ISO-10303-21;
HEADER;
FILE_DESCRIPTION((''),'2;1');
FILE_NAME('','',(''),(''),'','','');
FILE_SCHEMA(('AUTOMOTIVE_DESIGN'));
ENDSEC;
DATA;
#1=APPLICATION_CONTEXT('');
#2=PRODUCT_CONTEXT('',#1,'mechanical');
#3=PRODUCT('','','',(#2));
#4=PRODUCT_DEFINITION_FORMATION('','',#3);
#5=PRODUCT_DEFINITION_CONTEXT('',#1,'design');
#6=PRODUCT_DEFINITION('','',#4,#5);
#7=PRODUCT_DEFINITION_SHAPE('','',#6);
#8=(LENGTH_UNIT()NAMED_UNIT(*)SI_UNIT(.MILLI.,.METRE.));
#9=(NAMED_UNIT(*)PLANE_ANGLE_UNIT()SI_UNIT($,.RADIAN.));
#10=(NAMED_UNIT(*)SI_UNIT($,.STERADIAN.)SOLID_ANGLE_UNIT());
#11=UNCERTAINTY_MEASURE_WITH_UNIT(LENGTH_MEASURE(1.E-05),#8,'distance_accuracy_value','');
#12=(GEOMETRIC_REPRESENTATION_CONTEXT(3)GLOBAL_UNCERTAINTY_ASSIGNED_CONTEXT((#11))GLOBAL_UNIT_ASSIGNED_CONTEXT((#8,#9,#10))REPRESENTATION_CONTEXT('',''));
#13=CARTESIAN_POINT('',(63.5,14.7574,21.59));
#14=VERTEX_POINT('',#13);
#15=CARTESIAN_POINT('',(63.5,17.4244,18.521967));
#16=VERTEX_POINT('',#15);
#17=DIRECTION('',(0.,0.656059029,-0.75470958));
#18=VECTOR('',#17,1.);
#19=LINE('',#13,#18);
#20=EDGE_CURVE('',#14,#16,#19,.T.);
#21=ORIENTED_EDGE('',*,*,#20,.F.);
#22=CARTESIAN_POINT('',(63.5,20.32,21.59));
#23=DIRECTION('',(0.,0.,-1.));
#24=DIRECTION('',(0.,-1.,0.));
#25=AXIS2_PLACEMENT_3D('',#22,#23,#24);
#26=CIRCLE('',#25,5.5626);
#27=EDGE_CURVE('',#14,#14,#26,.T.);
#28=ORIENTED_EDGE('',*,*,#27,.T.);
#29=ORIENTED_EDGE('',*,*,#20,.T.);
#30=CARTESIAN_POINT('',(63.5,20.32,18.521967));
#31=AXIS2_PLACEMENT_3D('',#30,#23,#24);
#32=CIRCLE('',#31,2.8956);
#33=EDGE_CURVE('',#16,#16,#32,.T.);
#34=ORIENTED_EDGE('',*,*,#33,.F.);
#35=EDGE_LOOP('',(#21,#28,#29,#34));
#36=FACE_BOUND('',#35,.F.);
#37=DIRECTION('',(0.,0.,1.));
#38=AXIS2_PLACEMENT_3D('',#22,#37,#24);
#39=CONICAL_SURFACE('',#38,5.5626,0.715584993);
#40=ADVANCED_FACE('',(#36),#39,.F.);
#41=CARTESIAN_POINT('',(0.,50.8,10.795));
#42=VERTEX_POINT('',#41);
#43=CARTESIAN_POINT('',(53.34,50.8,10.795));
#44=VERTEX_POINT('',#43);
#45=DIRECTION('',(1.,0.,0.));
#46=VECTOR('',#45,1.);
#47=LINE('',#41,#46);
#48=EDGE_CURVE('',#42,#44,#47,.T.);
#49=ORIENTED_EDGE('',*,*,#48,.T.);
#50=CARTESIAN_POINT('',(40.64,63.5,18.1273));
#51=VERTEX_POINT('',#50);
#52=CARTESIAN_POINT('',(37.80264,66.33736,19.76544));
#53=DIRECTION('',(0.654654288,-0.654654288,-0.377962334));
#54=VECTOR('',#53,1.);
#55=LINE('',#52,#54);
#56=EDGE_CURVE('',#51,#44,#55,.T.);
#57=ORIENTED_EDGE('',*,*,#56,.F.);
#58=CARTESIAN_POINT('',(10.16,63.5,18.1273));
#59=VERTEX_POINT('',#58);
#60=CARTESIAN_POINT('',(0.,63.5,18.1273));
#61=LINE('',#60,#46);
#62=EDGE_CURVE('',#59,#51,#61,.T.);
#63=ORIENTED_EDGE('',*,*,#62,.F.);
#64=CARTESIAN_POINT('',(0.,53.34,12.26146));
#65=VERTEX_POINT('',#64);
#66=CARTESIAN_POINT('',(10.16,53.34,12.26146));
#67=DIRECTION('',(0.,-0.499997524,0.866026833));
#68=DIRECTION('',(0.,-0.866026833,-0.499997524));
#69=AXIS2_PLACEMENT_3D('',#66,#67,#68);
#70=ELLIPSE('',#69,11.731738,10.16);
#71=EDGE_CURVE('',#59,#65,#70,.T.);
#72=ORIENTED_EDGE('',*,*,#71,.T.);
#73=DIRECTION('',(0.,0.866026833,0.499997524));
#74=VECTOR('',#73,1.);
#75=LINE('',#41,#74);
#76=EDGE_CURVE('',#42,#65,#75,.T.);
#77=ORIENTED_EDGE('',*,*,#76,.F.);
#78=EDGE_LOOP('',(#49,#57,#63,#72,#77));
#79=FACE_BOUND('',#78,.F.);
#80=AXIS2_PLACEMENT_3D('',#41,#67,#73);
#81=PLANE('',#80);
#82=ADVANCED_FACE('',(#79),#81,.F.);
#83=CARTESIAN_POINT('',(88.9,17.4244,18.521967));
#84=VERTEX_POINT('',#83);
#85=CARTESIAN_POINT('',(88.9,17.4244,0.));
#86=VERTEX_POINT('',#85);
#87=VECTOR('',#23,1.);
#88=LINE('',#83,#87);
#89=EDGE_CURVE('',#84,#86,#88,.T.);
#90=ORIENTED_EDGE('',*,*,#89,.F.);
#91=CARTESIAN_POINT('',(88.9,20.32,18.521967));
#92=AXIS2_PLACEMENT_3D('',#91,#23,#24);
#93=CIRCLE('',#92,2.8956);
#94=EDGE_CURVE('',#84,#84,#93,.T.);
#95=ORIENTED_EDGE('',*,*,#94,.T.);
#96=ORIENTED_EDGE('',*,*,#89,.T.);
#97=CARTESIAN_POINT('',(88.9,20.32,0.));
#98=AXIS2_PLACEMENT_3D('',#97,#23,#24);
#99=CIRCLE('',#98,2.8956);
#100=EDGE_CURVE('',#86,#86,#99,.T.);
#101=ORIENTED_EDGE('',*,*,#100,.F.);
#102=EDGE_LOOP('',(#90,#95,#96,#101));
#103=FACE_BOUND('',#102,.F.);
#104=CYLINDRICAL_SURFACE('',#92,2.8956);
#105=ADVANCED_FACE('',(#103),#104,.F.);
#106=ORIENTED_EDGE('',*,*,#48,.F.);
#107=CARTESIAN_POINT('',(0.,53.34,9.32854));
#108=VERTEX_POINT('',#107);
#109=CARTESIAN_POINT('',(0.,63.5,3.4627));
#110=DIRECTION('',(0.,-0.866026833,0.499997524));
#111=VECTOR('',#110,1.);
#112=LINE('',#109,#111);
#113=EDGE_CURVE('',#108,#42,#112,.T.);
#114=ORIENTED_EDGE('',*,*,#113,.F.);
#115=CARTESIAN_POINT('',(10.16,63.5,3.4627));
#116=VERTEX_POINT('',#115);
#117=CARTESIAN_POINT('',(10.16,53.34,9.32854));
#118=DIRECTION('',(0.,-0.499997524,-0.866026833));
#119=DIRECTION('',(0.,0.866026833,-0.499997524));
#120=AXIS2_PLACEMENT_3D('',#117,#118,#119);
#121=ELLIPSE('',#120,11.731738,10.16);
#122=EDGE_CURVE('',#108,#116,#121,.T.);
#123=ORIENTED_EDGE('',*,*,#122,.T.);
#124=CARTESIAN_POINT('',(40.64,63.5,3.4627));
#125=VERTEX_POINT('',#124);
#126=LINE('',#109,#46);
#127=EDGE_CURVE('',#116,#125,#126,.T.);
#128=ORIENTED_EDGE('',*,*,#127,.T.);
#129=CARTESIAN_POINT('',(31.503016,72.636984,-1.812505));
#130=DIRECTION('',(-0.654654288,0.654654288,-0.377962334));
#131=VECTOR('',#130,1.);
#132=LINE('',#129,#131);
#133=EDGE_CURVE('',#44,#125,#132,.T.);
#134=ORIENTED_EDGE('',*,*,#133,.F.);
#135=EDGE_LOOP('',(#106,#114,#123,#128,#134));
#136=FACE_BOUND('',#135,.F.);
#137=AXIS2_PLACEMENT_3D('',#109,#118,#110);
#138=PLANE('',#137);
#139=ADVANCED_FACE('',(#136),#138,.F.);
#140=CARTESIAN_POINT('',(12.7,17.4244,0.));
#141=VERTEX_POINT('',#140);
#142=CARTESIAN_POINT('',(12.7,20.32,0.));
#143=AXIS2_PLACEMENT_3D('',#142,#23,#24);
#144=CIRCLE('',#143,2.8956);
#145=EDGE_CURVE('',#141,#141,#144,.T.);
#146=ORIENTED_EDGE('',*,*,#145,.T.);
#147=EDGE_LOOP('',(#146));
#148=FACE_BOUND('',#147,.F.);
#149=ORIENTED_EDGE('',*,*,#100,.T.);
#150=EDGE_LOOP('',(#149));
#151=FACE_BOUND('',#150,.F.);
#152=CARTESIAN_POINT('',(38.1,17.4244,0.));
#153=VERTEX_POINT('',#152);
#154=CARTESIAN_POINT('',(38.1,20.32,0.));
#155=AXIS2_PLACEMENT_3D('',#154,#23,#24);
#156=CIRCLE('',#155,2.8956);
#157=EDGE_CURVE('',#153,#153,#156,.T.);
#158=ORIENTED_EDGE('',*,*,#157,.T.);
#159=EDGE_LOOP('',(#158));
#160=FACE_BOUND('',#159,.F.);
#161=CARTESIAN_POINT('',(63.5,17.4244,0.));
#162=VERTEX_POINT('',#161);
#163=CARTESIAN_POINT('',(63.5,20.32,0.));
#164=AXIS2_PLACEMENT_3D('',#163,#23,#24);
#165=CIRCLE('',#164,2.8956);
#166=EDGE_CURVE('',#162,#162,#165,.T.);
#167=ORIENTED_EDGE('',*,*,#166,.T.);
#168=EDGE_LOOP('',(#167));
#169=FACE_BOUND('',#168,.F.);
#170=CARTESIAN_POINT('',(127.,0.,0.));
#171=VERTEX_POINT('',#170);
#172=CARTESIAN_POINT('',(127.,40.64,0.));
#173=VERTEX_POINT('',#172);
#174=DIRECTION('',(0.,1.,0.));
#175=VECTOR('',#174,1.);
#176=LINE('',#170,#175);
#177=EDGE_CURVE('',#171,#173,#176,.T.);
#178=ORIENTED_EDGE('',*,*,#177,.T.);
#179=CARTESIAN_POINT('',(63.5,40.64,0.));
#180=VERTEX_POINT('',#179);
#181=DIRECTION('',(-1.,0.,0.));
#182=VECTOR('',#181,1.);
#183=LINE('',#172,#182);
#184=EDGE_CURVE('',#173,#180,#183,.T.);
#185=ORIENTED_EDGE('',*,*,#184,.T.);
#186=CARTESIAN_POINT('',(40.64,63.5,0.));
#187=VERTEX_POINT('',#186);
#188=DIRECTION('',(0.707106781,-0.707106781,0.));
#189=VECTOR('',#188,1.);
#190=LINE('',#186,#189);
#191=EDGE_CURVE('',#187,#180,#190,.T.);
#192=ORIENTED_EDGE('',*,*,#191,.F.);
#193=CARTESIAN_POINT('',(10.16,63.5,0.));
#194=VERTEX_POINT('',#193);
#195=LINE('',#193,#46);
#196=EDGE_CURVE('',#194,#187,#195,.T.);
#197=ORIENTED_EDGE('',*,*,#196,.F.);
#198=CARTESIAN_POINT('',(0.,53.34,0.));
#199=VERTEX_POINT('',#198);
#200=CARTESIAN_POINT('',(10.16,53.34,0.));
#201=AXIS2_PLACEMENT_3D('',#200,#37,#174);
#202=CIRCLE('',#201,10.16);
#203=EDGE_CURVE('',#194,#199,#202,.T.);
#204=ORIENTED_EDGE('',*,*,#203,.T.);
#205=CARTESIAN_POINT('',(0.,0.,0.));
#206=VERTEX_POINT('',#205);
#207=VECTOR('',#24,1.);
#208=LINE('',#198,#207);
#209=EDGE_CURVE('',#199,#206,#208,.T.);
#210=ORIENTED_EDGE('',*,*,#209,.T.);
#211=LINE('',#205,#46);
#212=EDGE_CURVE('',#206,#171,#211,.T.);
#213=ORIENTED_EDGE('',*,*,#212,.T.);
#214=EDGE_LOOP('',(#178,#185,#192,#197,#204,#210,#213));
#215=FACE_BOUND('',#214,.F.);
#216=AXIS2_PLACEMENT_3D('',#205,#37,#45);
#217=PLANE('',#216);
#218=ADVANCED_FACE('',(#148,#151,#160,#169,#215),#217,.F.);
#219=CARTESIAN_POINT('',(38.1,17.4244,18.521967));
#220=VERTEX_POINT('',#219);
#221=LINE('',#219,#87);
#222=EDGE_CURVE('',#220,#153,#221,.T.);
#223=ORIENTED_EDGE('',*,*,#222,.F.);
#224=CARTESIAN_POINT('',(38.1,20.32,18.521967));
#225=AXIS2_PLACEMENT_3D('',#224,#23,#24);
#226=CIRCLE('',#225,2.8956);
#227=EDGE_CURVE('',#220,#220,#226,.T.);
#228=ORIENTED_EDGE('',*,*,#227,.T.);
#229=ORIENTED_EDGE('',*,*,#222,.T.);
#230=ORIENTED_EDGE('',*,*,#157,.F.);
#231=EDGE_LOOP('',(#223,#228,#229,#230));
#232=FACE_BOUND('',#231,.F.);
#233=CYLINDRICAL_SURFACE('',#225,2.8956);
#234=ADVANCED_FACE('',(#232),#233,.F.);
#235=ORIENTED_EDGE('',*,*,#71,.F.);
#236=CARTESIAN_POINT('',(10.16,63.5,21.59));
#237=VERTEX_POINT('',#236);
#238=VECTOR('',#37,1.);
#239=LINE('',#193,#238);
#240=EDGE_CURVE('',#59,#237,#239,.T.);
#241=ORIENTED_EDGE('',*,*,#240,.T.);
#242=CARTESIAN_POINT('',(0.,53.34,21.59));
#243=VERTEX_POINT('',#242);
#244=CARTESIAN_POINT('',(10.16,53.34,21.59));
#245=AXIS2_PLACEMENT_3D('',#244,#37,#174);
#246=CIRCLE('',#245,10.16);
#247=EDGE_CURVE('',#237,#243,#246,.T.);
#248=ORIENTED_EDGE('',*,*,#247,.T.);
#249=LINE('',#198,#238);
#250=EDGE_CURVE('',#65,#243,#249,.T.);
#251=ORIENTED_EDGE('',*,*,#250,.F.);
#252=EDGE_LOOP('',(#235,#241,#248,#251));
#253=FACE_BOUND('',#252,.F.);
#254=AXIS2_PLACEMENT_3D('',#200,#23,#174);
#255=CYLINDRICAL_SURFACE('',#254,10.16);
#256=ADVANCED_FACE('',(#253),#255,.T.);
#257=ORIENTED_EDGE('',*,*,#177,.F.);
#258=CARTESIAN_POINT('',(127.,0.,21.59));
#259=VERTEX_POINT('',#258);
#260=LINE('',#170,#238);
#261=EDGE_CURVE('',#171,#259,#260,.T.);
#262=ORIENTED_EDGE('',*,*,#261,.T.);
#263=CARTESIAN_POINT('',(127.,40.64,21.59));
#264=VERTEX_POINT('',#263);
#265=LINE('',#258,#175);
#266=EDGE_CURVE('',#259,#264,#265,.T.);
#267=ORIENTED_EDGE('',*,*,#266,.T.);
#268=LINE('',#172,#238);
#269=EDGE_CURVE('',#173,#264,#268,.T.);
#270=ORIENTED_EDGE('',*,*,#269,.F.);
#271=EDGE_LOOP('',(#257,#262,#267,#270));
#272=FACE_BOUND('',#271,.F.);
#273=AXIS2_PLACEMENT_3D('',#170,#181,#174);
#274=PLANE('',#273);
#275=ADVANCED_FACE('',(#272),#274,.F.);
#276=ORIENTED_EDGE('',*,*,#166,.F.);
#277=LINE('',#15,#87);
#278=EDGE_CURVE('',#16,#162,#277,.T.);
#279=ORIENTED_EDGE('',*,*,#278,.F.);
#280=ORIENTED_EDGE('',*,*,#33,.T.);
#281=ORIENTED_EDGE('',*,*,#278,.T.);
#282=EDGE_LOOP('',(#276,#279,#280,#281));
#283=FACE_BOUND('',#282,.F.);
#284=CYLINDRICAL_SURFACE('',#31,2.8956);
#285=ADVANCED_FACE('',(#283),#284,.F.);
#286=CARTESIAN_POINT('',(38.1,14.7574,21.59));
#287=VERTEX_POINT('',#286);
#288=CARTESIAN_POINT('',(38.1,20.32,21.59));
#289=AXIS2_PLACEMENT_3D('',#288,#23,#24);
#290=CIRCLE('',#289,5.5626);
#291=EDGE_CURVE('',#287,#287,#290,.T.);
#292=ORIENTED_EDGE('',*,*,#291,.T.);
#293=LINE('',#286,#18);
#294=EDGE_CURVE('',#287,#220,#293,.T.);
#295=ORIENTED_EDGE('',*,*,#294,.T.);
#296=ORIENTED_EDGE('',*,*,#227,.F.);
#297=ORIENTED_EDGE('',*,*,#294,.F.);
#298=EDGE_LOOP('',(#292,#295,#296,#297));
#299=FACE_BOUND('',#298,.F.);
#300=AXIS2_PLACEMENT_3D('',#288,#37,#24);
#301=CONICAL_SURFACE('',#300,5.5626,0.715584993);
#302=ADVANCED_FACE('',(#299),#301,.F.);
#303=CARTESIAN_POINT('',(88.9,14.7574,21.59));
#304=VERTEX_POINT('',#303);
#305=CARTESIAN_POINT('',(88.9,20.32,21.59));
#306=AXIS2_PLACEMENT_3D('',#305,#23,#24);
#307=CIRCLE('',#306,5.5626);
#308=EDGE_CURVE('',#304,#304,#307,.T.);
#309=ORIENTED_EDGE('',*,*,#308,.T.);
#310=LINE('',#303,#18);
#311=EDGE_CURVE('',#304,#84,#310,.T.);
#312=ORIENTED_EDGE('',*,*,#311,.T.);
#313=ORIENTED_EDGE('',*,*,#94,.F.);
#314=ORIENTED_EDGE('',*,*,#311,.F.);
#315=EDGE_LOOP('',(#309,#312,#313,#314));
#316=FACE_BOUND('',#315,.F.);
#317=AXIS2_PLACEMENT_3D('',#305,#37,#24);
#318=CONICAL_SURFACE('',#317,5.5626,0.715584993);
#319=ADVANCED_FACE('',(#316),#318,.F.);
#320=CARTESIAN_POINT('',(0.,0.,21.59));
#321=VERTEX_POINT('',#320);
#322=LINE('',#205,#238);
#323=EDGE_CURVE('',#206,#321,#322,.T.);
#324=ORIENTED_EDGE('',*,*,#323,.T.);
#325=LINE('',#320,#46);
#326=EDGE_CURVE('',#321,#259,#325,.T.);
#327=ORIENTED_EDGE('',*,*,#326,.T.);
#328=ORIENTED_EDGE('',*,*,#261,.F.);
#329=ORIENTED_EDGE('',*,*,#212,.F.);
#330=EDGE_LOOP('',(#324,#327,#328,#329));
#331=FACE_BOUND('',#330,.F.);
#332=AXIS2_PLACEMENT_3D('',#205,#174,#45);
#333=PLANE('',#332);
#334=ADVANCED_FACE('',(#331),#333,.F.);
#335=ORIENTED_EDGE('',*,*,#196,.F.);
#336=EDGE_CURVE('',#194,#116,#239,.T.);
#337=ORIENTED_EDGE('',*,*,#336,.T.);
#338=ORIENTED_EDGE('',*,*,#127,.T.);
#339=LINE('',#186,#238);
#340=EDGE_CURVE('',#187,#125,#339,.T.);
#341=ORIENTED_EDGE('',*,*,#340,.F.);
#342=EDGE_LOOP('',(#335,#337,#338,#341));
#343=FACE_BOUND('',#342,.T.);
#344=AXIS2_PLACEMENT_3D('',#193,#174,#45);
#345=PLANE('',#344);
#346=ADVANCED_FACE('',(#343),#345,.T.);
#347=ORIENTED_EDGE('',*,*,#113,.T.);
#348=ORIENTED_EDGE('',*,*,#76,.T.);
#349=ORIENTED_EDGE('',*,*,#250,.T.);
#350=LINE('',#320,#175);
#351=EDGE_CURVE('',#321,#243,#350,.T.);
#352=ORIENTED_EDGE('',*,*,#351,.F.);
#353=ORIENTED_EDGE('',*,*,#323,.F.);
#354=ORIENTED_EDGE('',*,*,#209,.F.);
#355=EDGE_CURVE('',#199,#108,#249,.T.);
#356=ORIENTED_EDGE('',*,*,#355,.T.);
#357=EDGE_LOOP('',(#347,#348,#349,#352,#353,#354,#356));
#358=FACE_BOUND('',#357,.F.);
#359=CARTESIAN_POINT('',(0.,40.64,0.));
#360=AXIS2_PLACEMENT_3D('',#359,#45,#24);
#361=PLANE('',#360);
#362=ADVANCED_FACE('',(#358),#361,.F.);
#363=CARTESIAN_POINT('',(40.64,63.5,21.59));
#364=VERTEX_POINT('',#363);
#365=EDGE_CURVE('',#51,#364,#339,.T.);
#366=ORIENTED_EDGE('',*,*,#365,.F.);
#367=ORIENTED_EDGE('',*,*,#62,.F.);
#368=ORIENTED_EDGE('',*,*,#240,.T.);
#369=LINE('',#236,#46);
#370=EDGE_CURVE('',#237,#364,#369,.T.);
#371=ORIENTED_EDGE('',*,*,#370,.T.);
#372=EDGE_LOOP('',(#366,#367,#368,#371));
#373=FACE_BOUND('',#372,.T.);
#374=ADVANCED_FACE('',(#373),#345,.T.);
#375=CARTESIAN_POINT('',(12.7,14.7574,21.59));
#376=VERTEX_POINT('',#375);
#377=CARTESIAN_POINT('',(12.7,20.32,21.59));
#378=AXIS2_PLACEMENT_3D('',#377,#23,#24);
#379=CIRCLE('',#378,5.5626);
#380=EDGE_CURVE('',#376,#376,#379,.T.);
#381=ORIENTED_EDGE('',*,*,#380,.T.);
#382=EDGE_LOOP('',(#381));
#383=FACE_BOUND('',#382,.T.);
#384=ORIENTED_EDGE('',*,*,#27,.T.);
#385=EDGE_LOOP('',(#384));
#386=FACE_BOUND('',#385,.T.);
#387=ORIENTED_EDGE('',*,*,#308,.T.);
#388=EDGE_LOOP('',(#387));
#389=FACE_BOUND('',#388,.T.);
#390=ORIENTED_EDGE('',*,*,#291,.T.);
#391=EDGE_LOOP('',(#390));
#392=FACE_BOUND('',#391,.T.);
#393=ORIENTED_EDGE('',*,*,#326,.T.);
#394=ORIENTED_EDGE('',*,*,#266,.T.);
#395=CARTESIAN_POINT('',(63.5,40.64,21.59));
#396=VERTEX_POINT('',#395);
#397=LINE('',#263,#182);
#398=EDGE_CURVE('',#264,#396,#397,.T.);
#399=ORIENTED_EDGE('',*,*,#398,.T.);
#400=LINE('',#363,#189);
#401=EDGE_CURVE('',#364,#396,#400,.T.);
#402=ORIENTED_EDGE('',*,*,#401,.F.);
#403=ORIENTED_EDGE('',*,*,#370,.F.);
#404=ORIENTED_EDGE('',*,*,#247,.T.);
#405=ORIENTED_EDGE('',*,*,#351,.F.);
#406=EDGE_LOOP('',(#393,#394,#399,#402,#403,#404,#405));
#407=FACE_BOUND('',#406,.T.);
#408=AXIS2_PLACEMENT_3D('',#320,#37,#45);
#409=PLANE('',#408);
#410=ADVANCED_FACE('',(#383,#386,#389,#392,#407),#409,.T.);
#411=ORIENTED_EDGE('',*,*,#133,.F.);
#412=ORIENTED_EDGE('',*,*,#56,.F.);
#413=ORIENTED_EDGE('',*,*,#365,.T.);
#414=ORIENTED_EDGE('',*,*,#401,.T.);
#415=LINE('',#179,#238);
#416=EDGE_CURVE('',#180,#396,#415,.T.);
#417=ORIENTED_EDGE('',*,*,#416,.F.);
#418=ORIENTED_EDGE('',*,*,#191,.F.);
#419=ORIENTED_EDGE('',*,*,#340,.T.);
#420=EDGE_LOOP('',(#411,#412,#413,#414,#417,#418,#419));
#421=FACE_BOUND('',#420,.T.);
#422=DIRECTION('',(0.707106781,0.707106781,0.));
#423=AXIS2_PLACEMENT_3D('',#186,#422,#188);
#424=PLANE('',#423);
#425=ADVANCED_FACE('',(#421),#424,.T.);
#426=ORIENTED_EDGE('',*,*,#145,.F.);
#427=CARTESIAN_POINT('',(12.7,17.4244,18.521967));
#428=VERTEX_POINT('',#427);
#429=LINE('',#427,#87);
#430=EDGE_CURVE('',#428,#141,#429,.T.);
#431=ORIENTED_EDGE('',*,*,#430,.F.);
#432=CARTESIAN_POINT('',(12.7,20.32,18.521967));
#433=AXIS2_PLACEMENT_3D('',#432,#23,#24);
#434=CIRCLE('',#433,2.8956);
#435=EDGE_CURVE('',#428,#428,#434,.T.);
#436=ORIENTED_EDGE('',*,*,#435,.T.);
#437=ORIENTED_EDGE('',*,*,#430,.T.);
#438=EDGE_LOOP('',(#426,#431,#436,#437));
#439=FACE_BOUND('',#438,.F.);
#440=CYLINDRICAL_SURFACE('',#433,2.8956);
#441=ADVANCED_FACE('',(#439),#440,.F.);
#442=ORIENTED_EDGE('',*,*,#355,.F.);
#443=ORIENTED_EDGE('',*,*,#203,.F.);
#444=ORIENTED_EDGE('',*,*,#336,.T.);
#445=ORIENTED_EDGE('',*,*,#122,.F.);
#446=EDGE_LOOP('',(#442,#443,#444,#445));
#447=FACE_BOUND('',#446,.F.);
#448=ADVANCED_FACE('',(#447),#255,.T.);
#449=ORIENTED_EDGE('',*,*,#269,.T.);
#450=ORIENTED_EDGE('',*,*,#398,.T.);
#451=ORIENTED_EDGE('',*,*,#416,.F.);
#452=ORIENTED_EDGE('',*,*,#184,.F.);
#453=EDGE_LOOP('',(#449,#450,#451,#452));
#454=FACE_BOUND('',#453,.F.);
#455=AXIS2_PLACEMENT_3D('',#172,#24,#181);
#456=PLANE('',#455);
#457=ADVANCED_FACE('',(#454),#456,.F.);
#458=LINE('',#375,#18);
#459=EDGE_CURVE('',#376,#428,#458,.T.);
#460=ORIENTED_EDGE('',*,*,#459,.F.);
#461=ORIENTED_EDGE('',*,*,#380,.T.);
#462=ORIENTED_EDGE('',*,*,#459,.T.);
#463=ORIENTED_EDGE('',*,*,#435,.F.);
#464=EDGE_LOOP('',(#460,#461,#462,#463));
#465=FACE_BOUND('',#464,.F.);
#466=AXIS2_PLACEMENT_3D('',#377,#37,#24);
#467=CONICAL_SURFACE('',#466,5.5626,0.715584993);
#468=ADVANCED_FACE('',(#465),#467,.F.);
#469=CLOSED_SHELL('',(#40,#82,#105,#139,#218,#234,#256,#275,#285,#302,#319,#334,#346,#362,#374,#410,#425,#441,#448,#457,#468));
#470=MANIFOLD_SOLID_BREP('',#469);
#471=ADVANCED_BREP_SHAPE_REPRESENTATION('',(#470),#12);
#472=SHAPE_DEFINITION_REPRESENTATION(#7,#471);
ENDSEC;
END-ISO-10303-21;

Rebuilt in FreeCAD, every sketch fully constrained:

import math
import FreeCAD as App
import Part
import Sketcher

V = App.Vector
Q = App.Units.Quantity


def add_polygon(sketch, points):
    """Adds a closed chain of lines whose ends are joined by coincident constraints."""
    first, n = sketch.GeometryCount, len(points)
    for a, b in zip(points, points[1:] + points[:1]):
        sketch.addGeometry(Part.LineSegment(App.Vector(*a, 0), App.Vector(*b, 0)), False)
    for i in range(n):
        sketch.addConstraint(Sketcher.Constraint("Coincident", first + i, 2, first + (i + 1) % n, 1))

doc = App.newDocument("Part")
body = doc.addObject("PartDesign::Body", "Body")

# Sketch on XY plane
sketch1 = body.newObject("Sketcher::SketchObject", "Sketch")
sketch1.AttachmentSupport = (doc.getObject("XY_Plane"), [""])
sketch1.MapMode = "FlatFace"
sketch1.addGeometry([
    Part.LineSegment(V(0, 0, 0), V(127, 0, 0)),  # 0
    Part.LineSegment(V(127, 0, 0), V(127, 40.64, 0)),  # 1
    Part.LineSegment(V(127, 40.64, 0), V(63.5, 40.64, 0)),  # 2
    Part.LineSegment(V(63.5, 40.64, 0), V(40.64, 63.5, 0)),  # 3
    Part.LineSegment(V(40.64, 63.5, 0), V(10.16, 63.5, 0)),  # 4
    Part.ArcOfCircle(Part.Circle(V(10.16, 53.34, 0), V(0, 0, 1), 10.16), math.radians(90), math.radians(180)),  # 5
    Part.LineSegment(V(0, 53.34, 0), V(0, 0, 0)),  # 6
], False)
sketch1.addConstraint([
    Sketcher.Constraint("Coincident", 0, 2, 1, 1),
    Sketcher.Constraint("Coincident", 1, 2, 2, 1),
    Sketcher.Constraint("Coincident", 2, 2, 3, 1),
    Sketcher.Constraint("Coincident", 3, 2, 4, 1),
    Sketcher.Constraint("Tangent", 4, 2, 5, 1),
    Sketcher.Constraint("Tangent", 5, 2, 6, 1),
    Sketcher.Constraint("Coincident", 6, 2, 0, 1),
    Sketcher.Constraint("Horizontal", 0),
    Sketcher.Constraint("Vertical", 1),
    Sketcher.Constraint("Horizontal", 2),
    Sketcher.Constraint("Horizontal", 4),
    Sketcher.Constraint("Vertical", 6),
    Sketcher.Constraint("Coincident", 6, 2, -1, 1),
    Sketcher.Constraint("Radius", 5, Q("0.4 in")),
    Sketcher.Constraint("DistanceX", 0, 1, 0, 2, Q("5 in")),
    Sketcher.Constraint("DistanceX", 2, 2, 2, 1, Q("2.5 in")),
    Sketcher.Constraint("DistanceY", 1, 1, 1, 2, Q("1.6 in")),
    Sketcher.Constraint("DistanceX", -1, 1, 3, 2, Q("1.6 in")),
    Sketcher.Constraint("DistanceY", -1, 1, 3, 2, Q("2.5 in")),
])
pad1 = body.newObject("PartDesign::Pad", "Pad")
pad1.Profile = sketch1
pad1.Length = Q("0.85 in")

# Sketch on YZ plane
sketch2 = body.newObject("Sketcher::SketchObject", "Sketch001")
sketch2.AttachmentSupport = (doc.getObject("YZ_Plane"), [""])
sketch2.MapMode = "FlatFace"
add_polygon(sketch2, [(50.8, 10.795), (63.5, 18.1273), (63.5, 3.4627)])  # lines 0-2
sketch2.addConstraint([
    Sketcher.Constraint("Vertical", 1),
    Sketcher.Constraint("Equal", 0, 2),
    Sketcher.Constraint("DistanceX", 2, 2, 0, 2, Q("0.5 in")),
    Sketcher.Constraint("DistanceX", -1, 1, 2, 2, Q("2 in")),
    Sketcher.Constraint("Angle", 0, Q("29.9998 deg")),
    Sketcher.Constraint("DistanceY", -1, 1, 2, 2, Q("0.425 in")),
])
pocket1 = body.newObject("PartDesign::Pocket", "Pocket")
pocket1.Profile = sketch2
pocket1.Type = "ThroughAll"
pocket1.Reversed = True

# Sketch on XY plane
sketch3 = body.newObject("Sketcher::SketchObject", "Sketch002")
sketch3.AttachmentSupport = (doc.getObject("XY_Plane"), [""])
sketch3.MapMode = "FlatFace"
sketch3.AttachmentOffset = App.Placement(V(0, 0, 0.85 * 25.4), App.Rotation())
sketch3.addGeometry(Part.Circle(V(12.7, 20.32, 0), V(0, 0, 1), 2.8956), False)
sketch3.addConstraint([
    Sketcher.Constraint("Diameter", 0, Q("0.228 in")),
    Sketcher.Constraint("DistanceX", -1, 1, 0, 3, Q("0.5 in")),
    Sketcher.Constraint("DistanceY", -1, 1, 0, 3, Q("0.8 in")),
])
doc.recompute()
hole = body.newObject("PartDesign::Hole", "Hole")
hole.Profile = sketch3
hole.ThreadType = "None"
hole.Diameter = Q("0.228 in")
hole.DepthType = "ThroughAll"
hole.HoleCutType = "Countersink"
hole.HoleCutDiameter = Q("0.438 in")
hole.HoleCutCountersinkAngle = 82
doc.recompute()

linearpattern = body.newObject("PartDesign::LinearPattern", "LinearPattern")
linearpattern.Originals = [hole]
linearpattern.Direction = (doc.getObject("X_Axis"), [""])
linearpattern.Mode = "offset"
linearpattern.Offset = Q("1 in")
linearpattern.Occurrences = 4
body.Tip = linearpattern

doc.recompute()
